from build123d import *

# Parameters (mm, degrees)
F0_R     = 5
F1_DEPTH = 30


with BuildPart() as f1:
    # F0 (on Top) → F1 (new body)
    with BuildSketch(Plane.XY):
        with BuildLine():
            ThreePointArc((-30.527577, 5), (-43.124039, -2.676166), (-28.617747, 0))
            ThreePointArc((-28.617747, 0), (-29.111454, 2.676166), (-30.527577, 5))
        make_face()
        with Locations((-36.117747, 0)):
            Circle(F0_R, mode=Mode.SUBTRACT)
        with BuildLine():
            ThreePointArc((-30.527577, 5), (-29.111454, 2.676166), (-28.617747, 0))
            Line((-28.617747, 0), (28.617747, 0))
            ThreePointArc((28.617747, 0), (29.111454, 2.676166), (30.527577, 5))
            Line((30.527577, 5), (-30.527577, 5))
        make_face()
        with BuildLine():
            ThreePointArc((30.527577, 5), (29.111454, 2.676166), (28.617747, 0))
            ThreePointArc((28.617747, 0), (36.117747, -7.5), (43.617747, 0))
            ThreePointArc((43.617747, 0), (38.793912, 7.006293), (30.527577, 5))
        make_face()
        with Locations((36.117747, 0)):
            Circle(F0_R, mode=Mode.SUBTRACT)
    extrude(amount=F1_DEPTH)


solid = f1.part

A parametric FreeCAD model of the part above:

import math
import FreeCAD as App
import Part
import Sketcher

V = App.Vector

doc = App.newDocument("Part")
body = doc.addObject("PartDesign::Body", "Body")

# Sketch on XY plane
sketch1 = doc.addObject("Sketcher::SketchObject", "Sketch")
body.addObject(sketch1)
sketch1.AttachmentSupport = (doc.XY_Plane, [""])
sketch1.MapMode = "FlatFace"
sketch1.addGeometry([
    Part.ArcOfCircle(Part.Circle(V(-36.117747, 0, 0), V(0, 0, 1), 7.5), math.radians(41.810315), math.radians(359.999999)),  # 0
    Part.LineSegment(V(-28.617747, 0, 0), V(28.617747, 0, 0)),  # 1
    Part.ArcOfCircle(Part.Circle(V(36.117747, 0, 0), V(0, 0, 1), 7.5), math.radians(180), math.radians(360)),  # 2
    Part.ArcOfCircle(Part.Circle(V(36.117747, 0, 0), V(0, 0, 1), 7.5), math.radians(0), math.radians(138.189686)),  # 3
    Part.LineSegment(V(30.527577, 5, 0), V(-30.527577, 5, 0)),  # 4
    Part.Circle(V(-36.117747, 0, 0), V(0, 0, 1), 5),  # 5
    Part.Circle(V(36.117747, 0, 0), V(0, 0, 1), 5),  # 6
], False)
sketch1.addConstraint([
    Sketcher.Constraint("Coincident", 0, 2, 1, 1),
    Sketcher.Constraint("Coincident", 1, 2, 2, 1),
    Sketcher.Constraint("Tangent", 2, 2, 3, 1),
    Sketcher.Constraint("Coincident", 3, 2, 4, 1),
    Sketcher.Constraint("Coincident", 4, 2, 0, 1),
    Sketcher.Constraint("Horizontal", 1),
    Sketcher.Constraint("Horizontal", 4),
    Sketcher.Constraint("Coincident", 5, 3, 0, 3),
    Sketcher.Constraint("Coincident", 6, 3, 2, 3),
    Sketcher.Constraint("Equal", 0, 2),
    Sketcher.Constraint("Equal", 2, 3),
    Sketcher.Constraint("Equal", 5, 6),
    Sketcher.Constraint("Symmetric", 0, 3, 2, 3, -1, 1),
    Sketcher.Constraint("PointOnObject", 0, 3, -1),
    Sketcher.Constraint("PointOnObject", 0, 2, -1),
    Sketcher.Constraint("PointOnObject", 2, 2, -1),
    Sketcher.Constraint("Diameter", 5, 10.0),
    Sketcher.Constraint("Radius", 0, 7.5),
    Sketcher.Constraint("DistanceY", -1, 1, 3, 2, 5.0),
    Sketcher.Constraint("DistanceX", 1, 1, 1, 2, 57.235494),
])
pad1 = doc.addObject("PartDesign::Pad", "Pad")
body.addObject(pad1)
pad1.Profile = sketch1
pad1.Length = 30

doc.recompute()
